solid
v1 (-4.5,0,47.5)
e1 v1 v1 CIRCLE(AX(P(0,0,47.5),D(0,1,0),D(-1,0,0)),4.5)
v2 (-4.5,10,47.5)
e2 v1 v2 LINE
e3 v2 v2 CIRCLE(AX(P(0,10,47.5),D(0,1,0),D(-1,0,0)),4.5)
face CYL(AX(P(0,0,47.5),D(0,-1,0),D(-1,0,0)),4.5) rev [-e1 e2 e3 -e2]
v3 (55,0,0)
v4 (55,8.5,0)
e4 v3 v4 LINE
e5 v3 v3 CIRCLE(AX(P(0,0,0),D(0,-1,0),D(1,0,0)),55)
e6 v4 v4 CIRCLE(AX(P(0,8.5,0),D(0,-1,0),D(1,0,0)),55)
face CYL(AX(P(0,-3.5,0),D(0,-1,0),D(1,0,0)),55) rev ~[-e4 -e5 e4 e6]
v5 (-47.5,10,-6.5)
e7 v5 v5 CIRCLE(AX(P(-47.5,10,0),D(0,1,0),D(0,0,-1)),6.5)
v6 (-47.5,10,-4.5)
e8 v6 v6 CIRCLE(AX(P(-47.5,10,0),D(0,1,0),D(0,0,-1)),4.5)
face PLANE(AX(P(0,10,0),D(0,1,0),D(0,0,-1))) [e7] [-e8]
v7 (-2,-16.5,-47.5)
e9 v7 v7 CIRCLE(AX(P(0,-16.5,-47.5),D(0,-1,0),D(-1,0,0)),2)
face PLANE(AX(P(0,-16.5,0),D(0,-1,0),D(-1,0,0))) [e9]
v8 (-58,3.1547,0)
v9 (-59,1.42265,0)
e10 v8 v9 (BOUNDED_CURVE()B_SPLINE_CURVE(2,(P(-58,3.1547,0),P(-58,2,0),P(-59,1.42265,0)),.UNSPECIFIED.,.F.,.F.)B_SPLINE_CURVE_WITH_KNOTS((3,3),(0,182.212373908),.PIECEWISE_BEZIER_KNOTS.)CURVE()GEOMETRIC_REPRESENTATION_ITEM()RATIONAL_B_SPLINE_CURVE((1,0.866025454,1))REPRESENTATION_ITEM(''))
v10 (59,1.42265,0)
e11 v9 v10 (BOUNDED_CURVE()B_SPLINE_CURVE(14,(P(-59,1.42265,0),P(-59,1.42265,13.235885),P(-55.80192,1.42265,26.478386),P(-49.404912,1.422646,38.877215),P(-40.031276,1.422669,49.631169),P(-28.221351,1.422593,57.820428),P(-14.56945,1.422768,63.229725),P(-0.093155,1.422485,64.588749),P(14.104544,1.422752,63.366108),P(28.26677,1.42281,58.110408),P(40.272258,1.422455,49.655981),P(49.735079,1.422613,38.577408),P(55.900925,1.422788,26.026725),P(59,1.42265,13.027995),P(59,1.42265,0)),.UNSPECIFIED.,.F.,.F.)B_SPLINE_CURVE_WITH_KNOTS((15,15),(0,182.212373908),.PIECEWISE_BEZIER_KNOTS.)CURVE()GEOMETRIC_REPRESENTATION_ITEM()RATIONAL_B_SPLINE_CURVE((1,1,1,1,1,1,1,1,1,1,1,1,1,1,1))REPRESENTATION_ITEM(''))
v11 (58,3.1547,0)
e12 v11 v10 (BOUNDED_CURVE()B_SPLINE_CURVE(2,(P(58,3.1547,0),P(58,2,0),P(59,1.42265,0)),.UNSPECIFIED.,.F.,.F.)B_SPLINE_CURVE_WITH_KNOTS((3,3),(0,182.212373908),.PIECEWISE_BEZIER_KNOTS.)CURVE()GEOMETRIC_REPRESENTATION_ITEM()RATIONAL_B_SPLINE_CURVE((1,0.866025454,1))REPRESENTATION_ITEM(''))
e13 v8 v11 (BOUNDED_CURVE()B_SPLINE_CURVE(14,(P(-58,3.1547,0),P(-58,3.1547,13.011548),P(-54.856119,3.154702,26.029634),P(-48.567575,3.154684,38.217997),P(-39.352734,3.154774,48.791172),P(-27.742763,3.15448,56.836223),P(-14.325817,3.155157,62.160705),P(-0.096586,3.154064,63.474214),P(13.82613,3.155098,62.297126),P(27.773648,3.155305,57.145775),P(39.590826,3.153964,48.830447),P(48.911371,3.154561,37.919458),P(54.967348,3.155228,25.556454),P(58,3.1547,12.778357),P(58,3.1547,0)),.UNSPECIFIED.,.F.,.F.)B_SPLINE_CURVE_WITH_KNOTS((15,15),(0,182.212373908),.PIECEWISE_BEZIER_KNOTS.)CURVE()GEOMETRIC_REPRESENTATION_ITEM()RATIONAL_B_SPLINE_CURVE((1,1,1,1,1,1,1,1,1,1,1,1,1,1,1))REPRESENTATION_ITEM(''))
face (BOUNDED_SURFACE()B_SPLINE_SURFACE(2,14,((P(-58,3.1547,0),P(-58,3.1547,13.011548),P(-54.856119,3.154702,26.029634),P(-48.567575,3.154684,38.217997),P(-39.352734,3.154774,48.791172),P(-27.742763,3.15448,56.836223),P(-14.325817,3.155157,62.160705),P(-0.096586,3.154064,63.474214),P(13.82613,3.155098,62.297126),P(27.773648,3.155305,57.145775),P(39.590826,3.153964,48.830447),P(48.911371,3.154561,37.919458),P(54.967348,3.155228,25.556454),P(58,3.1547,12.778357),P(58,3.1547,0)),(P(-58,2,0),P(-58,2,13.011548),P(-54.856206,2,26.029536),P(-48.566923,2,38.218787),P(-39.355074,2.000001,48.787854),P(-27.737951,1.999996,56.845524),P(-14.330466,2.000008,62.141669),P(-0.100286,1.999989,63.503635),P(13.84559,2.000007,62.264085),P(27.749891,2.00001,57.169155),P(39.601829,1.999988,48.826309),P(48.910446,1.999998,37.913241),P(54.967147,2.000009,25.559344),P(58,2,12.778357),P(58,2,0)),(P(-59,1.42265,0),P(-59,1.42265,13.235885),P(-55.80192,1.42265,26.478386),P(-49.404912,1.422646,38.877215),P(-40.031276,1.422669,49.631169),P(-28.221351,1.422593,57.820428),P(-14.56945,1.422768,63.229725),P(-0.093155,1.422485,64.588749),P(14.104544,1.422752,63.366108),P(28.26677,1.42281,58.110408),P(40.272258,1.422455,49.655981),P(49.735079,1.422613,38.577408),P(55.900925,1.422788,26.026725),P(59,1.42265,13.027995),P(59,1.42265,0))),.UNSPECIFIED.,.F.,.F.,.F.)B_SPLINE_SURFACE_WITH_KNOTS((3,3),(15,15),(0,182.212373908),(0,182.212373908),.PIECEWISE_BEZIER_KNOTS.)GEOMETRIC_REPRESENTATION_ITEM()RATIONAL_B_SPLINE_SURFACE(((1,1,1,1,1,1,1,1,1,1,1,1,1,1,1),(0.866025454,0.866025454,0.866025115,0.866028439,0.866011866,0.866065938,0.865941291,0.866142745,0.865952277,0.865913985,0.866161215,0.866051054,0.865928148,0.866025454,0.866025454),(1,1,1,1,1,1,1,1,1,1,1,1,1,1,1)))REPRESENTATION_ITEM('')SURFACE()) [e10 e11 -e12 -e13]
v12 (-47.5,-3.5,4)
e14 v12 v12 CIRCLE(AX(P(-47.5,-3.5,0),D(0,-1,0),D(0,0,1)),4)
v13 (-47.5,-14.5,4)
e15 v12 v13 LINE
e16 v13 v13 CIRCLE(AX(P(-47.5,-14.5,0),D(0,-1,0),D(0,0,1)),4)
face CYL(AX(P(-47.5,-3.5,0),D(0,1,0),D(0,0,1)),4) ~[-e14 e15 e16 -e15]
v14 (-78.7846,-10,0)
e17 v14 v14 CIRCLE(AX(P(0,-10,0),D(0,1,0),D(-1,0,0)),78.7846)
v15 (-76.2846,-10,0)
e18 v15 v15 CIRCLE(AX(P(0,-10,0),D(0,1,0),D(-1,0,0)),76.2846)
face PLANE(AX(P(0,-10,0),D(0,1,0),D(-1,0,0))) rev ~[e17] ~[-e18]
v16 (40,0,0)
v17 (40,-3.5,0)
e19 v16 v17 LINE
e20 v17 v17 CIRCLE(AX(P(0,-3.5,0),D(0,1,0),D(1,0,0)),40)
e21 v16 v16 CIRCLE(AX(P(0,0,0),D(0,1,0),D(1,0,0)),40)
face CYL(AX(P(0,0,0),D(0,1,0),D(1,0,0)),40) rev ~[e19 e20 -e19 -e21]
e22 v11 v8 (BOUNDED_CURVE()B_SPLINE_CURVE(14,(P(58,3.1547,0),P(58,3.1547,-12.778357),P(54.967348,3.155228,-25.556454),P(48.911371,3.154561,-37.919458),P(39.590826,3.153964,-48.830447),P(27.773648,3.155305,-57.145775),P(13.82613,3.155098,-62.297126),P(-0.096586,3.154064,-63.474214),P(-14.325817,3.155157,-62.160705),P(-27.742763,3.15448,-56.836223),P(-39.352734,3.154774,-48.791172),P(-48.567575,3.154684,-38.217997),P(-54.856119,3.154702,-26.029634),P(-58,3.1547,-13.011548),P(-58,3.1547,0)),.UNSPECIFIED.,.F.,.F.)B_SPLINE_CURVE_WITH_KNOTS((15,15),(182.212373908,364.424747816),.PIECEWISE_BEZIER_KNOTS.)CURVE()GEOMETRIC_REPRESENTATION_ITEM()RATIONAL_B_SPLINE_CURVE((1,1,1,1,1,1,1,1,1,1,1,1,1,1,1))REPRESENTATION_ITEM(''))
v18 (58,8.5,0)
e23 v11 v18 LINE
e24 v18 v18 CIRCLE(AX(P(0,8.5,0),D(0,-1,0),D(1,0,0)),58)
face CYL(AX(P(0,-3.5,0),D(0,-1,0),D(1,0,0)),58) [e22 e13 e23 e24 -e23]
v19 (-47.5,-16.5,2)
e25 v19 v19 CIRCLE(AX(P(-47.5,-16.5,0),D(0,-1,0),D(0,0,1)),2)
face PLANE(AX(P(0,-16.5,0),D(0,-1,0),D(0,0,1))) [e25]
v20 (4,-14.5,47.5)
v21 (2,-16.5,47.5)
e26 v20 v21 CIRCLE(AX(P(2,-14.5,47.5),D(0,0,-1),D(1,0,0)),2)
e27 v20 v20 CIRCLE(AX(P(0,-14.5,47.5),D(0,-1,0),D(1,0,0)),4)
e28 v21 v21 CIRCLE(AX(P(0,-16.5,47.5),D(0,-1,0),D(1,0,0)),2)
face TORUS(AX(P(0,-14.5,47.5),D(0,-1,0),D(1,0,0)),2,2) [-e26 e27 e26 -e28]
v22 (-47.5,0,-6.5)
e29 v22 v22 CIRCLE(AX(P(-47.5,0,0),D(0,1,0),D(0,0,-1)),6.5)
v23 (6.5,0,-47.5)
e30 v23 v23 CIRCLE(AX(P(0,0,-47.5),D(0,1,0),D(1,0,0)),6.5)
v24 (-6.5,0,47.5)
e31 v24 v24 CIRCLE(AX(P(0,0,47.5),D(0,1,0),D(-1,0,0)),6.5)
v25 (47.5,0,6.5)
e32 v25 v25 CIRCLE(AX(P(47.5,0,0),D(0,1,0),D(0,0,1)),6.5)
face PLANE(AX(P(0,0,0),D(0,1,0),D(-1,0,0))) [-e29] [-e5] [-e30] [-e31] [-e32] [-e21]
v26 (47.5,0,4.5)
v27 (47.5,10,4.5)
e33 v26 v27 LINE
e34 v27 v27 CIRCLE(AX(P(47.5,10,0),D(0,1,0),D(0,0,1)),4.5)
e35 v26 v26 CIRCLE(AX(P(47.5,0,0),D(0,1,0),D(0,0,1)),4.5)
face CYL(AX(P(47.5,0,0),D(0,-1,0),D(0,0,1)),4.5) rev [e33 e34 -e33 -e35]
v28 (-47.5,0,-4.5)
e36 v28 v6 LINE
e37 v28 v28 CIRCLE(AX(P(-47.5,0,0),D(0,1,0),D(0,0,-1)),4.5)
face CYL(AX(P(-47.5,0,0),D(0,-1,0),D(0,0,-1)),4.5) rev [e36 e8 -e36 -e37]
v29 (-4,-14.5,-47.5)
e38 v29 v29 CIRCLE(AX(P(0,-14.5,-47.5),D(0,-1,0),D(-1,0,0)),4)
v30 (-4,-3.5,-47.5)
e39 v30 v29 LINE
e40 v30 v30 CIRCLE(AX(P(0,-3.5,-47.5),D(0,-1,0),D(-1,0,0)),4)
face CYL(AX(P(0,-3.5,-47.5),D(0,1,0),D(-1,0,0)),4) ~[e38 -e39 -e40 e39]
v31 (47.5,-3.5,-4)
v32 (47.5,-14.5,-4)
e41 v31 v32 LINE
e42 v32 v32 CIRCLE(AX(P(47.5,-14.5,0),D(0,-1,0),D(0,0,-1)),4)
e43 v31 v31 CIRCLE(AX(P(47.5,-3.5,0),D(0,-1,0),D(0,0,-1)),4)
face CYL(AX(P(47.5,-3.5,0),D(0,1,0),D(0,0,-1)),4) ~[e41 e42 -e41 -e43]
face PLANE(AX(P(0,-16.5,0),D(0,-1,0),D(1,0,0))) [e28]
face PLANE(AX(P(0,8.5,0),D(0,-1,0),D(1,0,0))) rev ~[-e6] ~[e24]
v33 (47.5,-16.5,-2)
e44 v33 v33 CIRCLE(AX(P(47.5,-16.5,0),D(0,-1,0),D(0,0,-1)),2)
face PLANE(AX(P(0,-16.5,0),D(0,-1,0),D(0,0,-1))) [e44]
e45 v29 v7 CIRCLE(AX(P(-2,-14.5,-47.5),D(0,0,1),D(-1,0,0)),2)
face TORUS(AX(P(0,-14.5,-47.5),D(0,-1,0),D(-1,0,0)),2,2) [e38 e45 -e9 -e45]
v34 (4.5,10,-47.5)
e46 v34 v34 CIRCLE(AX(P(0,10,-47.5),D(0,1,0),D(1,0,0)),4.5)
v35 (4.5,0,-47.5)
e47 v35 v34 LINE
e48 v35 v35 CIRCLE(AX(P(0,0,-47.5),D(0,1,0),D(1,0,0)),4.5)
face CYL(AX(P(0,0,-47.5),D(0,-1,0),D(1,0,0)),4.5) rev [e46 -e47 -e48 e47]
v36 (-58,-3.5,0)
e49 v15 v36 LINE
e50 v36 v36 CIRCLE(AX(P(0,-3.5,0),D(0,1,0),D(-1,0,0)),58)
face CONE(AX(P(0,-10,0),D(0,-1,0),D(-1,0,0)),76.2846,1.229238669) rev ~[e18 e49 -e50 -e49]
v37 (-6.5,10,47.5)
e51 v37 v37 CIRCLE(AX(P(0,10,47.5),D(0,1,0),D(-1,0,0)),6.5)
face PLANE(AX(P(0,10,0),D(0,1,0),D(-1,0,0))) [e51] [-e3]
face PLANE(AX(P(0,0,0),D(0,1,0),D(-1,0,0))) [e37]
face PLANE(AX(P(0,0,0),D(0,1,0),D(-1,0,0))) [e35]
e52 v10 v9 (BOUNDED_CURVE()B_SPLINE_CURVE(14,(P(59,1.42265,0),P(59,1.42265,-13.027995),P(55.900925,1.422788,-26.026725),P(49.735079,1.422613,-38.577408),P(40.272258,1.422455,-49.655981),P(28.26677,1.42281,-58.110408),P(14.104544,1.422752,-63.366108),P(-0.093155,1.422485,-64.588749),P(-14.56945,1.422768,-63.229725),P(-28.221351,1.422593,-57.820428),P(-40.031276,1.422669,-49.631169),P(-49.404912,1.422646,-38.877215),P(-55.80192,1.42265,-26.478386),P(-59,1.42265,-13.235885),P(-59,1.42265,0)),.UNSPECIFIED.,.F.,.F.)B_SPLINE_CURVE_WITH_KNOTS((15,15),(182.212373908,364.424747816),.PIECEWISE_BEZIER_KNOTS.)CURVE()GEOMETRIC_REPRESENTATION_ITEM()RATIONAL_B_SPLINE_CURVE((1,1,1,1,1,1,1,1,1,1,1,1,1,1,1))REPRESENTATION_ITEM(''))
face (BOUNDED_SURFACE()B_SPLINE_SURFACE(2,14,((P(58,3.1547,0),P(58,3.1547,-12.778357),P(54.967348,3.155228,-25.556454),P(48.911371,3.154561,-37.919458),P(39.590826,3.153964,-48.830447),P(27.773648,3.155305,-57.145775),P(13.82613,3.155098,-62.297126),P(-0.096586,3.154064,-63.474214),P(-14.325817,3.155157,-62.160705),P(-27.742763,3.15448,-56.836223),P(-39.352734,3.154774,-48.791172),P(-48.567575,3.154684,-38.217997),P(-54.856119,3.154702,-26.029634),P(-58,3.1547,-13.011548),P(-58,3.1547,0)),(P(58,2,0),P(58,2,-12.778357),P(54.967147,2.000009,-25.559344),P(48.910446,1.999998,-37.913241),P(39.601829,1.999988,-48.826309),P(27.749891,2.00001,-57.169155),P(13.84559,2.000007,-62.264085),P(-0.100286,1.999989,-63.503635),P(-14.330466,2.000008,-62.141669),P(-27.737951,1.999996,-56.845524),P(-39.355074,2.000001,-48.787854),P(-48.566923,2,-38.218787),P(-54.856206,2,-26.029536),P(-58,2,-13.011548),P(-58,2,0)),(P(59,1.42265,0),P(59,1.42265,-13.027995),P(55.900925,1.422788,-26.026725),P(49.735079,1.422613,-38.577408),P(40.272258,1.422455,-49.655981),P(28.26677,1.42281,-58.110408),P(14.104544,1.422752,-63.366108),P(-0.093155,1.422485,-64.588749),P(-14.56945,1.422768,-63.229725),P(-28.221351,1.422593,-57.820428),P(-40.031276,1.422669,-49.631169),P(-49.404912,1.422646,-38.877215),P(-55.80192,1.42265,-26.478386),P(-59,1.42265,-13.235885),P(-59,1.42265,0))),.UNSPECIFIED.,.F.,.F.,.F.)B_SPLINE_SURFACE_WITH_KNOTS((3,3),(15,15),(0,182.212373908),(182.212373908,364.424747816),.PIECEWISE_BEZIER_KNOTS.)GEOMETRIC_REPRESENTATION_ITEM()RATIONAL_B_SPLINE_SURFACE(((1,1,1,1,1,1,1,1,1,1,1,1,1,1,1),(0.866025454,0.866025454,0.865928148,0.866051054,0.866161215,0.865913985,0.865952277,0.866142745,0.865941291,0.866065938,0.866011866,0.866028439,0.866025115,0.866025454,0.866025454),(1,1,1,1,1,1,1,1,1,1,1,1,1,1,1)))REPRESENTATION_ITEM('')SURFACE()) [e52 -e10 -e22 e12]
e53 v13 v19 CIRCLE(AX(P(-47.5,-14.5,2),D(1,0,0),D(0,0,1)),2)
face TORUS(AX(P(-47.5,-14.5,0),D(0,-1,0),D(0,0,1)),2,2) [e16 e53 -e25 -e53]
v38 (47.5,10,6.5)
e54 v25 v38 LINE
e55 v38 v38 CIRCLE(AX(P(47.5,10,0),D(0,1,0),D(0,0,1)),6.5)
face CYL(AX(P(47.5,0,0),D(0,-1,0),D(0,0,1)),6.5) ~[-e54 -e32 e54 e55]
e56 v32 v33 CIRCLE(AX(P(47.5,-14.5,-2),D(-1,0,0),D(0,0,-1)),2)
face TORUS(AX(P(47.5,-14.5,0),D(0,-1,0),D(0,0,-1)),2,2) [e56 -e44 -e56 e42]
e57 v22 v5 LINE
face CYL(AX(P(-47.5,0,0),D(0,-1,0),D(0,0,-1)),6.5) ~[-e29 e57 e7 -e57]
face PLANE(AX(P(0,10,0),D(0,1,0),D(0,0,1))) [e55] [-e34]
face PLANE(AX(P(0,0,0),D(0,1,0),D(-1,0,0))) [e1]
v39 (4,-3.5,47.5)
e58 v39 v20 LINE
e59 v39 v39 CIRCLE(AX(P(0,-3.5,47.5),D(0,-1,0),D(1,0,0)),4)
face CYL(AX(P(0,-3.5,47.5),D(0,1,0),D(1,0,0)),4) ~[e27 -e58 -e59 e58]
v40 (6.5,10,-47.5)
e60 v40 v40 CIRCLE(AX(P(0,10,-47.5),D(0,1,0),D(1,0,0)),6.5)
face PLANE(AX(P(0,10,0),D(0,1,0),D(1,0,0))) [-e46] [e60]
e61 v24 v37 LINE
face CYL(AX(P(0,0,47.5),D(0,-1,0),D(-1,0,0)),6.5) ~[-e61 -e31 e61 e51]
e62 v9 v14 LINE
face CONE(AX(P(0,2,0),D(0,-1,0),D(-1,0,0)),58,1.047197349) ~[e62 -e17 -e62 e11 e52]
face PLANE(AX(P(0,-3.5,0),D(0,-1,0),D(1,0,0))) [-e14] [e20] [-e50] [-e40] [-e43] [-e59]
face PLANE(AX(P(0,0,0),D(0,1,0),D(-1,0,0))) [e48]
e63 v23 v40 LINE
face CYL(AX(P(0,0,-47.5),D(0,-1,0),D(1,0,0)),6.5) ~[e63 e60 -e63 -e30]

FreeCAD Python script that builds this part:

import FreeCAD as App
import Part
import Sketcher

V = App.Vector
Q = App.Units.Quantity


def edges_at(feature, points):
    """Names of the edges that pass closest to the given points."""
    edges = feature.Shape.Edges
    near = lambda p: min(range(len(edges)), key=lambda i: edges[i].distToShape(Part.Vertex(*p))[0])
    return sorted({f"Edge{near(p) + 1}" for p in points})


def add_polygon(sketch, points):
    """Adds a closed chain of lines whose ends are joined by coincident constraints."""
    first, n = sketch.GeometryCount, len(points)
    for a, b in zip(points, points[1:] + points[:1]):
        sketch.addGeometry(Part.LineSegment(App.Vector(*a, 0), App.Vector(*b, 0)), False)
    for i in range(n):
        sketch.addConstraint(Sketcher.Constraint("Coincident", first + i, 2, first + (i + 1) % n, 1))

doc = App.newDocument("Part")
body = doc.addObject("PartDesign::Body", "Body")

sketch1 = body.newObject("Sketcher::SketchObject", "Sketch")
sketch1.AttachmentSupport = (doc.getObject("XZ_Plane"), [""])
sketch1.MapMode = "FlatFace"
sketch1.addGeometry(Part.Circle(V(0, 0, 0), V(0, 0, 1), 55), False)
sketch1.addConstraint(Sketcher.Constraint("Coincident", 0, 3, -1, 1))
sketch1.addConstraint(Sketcher.Constraint("Diameter", 0, 110.0))
pad1 = body.newObject("PartDesign::Pad", "Pad")
pad1.Profile = sketch1
pad1.Length = 3.5

sketch2 = body.newObject("Sketcher::SketchObject", "Sketch001")
sketch2.AttachmentSupport = (doc.getObject("XZ_Plane"), [""])
sketch2.MapMode = "FlatFace"
sketch2.addGeometry(Part.Circle(V(0, 47.5, 0), V(0, 0, 1), 6.5), False)
sketch2.addGeometry(Part.Circle(V(0, 47.5, 0), V(0, 0, 1), 4.5), False)
sketch2.addConstraint(Sketcher.Constraint("Coincident", 1, 3, 0, 3))
sketch2.addConstraint(Sketcher.Constraint("PointOnObject", 0, 3, -2))
sketch2.addConstraint(Sketcher.Constraint("Diameter", 0, 13.0))
sketch2.addConstraint(Sketcher.Constraint("Diameter", 1, 9.0))
sketch2.addConstraint(Sketcher.Constraint("DistanceY", -1, 1, 0, 3, 47.5))
pad2 = body.newObject("PartDesign::Pad", "Pad001")
pad2.Profile = sketch2
pad2.Length = 10
pad2.Reversed = True
doc.recompute()

polarpattern = body.newObject("PartDesign::PolarPattern", "PolarPattern")
polarpattern.Originals = [pad2]
polarpattern.Axis = (doc.getObject("Y_Axis"), [""])
polarpattern.Angle = 360
polarpattern.Occurrences = 4
body.Tip = polarpattern

sketch3 = body.newObject("Sketcher::SketchObject", "Sketch002")
sketch3.AttachmentSupport = (doc.getObject("XZ_Plane"), [""])
sketch3.MapMode = "FlatFace"
sketch3.AttachmentOffset = App.Placement(V(0, 0, 3.5), App.Rotation())
sketch3.addGeometry(Part.Circle(V(0, 0, 0), V(0, 0, 1), 58), False)
sketch3.addGeometry(Part.Circle(V(0, 0, 0), V(0, 0, 1), 55), False)
sketch3.addConstraint(Sketcher.Constraint("Coincident", 0, 3, -1, 1))
sketch3.addConstraint(Sketcher.Constraint("Coincident", 1, 3, -1, 1))
sketch3.addConstraint(Sketcher.Constraint("Diameter", 0, 116.0))
sketch3.addConstraint(Sketcher.Constraint("Diameter", 1, 110.0))
pad3 = body.newObject("PartDesign::Pad", "Pad002")
pad3.Profile = sketch3
pad3.Length = 12
pad3.Reversed = True

sketch4 = body.newObject("Sketcher::SketchObject", "Sketch003")
sketch4.AttachmentSupport = (doc.getObject("XZ_Plane"), [""])
sketch4.MapMode = "FlatFace"
sketch4.addGeometry(Part.Circle(V(0, 0, 0), V(0, 0, 1), 40), False)
sketch4.addConstraint(Sketcher.Constraint("Coincident", 0, 3, -1, 1))
sketch4.addConstraint(Sketcher.Constraint("Diameter", 0, 80.0))
pocket1 = body.newObject("PartDesign::Pocket", "Pocket")
pocket1.Profile = sketch4
pocket1.Length = 30
pocket1.Reversed = True

sketch5 = body.newObject("Sketcher::SketchObject", "Sketch004")
sketch5.AttachmentSupport = (doc.getObject("XY_Plane"), [""])
sketch5.MapMode = "FlatFace"
add_polygon(sketch5, [(-76.2846, -10), (-58, -3.5), (-58, 2), (-78.7846, -10)])
sketch5.addConstraint(Sketcher.Constraint("Vertical", 1))
sketch5.addConstraint(Sketcher.Constraint("Horizontal", 3))
sketch5.addConstraint(Sketcher.Constraint("DistanceX", 3, 1, 3, 2, 2.5))
sketch5.addConstraint(Sketcher.Constraint("DistanceY", 1, 1, 1, 2, 5.5))
sketch5.addConstraint(Sketcher.Constraint("DistanceY", 2, 2, 1, 2, 12.0))
sketch5.addConstraint(Sketcher.Constraint("Angle", 2, Q("-150 deg")))
sketch5.addConstraint(Sketcher.Constraint("DistanceX", 0, 2, -1, 1, 58.0))
sketch5.addConstraint(Sketcher.Constraint("DistanceY", -1, 1, 1, 2, 2.0))
revolution = body.newObject("PartDesign::Revolution", "Revolution")
revolution.Profile = sketch5
revolution.ReferenceAxis = (sketch5, ["V_Axis"])
revolution.Angle = 360

sketch6 = body.newObject("Sketcher::SketchObject", "Sketch005")
sketch6.AttachmentSupport = (doc.getObject("XZ_Plane"), [""])
sketch6.MapMode = "FlatFace"
sketch6.AttachmentOffset = App.Placement(V(0, 0, 3.5), App.Rotation())
sketch6.addGeometry(Part.Circle(V(0, 47.5, 0), V(0, 0, 1), 4), False)
sketch6.addConstraint(Sketcher.Constraint("PointOnObject", 0, 3, -2))
sketch6.addConstraint(Sketcher.Constraint("Diameter", 0, 8.0))
sketch6.addConstraint(Sketcher.Constraint("DistanceY", -1, 1, 0, 3, 47.5))
pad4 = body.newObject("PartDesign::Pad", "Pad003")
pad4.Profile = sketch6
pad4.Length = 13
doc.recompute()

polarpattern2 = body.newObject("PartDesign::PolarPattern", "PolarPattern001")
polarpattern2.Originals = [pad4]
polarpattern2.Axis = (doc.getObject("Y_Axis"), [""])
polarpattern2.Angle = 360
polarpattern2.Occurrences = 4
body.Tip = polarpattern2
doc.recompute()

fillet = body.newObject("PartDesign::Fillet", "Fillet")
fillet.Base = (polarpattern2, edges_at(polarpattern2, [
    (0, 2, 58),
    (0, 2, -58),
    (4, -16.5, -47.5),
    (47.5, -16.5, 4),
    (-47.5, -16.5, -4),
    (-4, -16.5, 47.5),
]))
fillet.Radius = 2

doc.recompute()
